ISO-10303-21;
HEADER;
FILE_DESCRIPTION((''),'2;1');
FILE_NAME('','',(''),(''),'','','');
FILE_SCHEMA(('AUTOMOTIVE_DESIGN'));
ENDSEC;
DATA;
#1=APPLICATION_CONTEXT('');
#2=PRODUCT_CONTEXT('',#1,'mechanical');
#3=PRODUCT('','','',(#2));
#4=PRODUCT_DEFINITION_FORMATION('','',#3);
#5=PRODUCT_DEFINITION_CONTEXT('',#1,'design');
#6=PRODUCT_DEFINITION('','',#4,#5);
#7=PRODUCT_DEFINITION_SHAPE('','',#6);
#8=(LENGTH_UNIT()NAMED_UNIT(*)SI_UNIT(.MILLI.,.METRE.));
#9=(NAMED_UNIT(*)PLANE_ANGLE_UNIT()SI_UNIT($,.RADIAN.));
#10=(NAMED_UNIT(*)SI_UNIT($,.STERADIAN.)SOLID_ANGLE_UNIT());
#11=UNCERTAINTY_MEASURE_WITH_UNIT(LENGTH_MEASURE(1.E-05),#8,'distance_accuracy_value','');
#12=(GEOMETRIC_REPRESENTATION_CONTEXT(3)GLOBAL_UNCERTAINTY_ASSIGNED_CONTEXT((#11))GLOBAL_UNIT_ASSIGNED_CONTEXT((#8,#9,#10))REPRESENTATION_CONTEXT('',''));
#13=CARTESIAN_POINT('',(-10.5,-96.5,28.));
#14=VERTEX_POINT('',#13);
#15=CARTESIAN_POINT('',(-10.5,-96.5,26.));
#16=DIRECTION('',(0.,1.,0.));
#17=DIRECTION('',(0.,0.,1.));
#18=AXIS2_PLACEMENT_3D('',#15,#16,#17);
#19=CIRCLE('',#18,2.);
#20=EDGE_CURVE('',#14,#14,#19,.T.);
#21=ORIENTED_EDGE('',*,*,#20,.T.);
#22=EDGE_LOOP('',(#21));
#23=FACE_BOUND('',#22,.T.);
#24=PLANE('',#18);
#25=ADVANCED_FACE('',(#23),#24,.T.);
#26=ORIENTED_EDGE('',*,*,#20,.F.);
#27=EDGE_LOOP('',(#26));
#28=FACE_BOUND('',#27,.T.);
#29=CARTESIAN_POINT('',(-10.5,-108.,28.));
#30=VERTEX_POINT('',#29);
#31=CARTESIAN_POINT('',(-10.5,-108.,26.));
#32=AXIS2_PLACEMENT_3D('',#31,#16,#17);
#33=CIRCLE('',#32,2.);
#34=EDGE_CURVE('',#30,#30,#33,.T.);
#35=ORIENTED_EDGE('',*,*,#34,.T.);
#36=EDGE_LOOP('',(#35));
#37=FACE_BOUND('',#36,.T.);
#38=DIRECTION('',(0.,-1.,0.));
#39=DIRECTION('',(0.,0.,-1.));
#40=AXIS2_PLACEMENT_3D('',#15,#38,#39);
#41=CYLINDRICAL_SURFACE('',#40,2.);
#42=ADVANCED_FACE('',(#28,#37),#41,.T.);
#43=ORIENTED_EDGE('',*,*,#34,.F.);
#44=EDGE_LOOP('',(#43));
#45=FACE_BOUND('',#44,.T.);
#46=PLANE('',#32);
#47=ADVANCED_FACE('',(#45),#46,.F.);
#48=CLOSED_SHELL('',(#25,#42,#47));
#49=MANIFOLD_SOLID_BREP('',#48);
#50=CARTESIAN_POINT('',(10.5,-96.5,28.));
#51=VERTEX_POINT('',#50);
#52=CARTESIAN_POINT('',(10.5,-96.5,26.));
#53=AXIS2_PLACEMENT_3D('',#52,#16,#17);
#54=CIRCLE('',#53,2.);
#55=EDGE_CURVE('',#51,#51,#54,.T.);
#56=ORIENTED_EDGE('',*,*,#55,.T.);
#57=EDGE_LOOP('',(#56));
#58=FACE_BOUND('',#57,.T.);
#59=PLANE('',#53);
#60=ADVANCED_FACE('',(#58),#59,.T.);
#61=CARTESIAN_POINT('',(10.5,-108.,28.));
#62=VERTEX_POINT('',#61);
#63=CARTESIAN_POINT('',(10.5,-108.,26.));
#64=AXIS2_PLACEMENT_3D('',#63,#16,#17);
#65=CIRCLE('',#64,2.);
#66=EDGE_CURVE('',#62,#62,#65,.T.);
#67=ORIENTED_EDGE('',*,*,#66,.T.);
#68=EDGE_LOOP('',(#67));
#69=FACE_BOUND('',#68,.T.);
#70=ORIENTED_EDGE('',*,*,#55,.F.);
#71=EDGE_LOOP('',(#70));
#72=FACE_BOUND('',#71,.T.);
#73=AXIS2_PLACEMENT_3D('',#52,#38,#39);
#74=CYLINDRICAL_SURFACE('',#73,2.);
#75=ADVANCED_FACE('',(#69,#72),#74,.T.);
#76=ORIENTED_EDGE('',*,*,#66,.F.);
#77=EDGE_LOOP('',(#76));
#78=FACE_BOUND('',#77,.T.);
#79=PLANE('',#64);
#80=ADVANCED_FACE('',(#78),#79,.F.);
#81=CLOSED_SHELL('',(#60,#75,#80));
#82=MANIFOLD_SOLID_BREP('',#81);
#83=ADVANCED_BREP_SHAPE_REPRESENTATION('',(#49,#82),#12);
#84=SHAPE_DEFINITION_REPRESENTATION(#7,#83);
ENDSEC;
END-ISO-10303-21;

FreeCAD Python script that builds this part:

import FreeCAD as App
import Part
import Sketcher

doc = App.newDocument("Part")
body = doc.addObject("PartDesign::Body", "Body")

# Sketch on XZ plane
sketch1 = doc.addObject("Sketcher::SketchObject", "Sketch")
body.addObject(sketch1)
sketch1.AttachmentSupport = (doc.XZ_Plane, [""])
sketch1.MapMode = "FlatFace"
sketch1.AttachmentOffset = App.Placement(App.Vector(0, 0, 108), App.Rotation())
sketch1.addGeometry(Part.Circle(App.Vector(-10.5, 26, 0), App.Vector(0, 0, 1), 2), False)
sketch1.addConstraint(Sketcher.Constraint("Diameter", 0, 4.0))
sketch1.addConstraint(Sketcher.Constraint("DistanceY", -1, 1, 0, 3, 26.0))
sketch1.addConstraint(Sketcher.Constraint("DistanceX", 0, 3, -1, 1, 10.5))
pad1 = doc.addObject("PartDesign::Pad", "Pad")
body.addObject(pad1)
pad1.Profile = sketch1
pad1.Length = 11.5
pad1.Reversed = True
body2 = doc.addObject("PartDesign::Body", "Body001")

# Sketch on XZ plane
sketch2 = doc.addObject("Sketcher::SketchObject", "Sketch001")
body2.addObject(sketch2)
sketch2.AttachmentSupport = (doc.getObject("XZ_Plane001"), [""])
sketch2.MapMode = "FlatFace"
sketch2.AttachmentOffset = App.Placement(App.Vector(0, 0, 108), App.Rotation())
sketch2.addGeometry(Part.Circle(App.Vector(10.5, 26, 0), App.Vector(0, 0, 1), 2), False)
sketch2.addConstraint(Sketcher.Constraint("Diameter", 0, 4.0))
sketch2.addConstraint(Sketcher.Constraint("DistanceY", -1, 1, 0, 3, 26.0))
sketch2.addConstraint(Sketcher.Constraint("DistanceX", -1, 1, 0, 3, 10.5))
pad2 = doc.addObject("PartDesign::Pad", "Pad001")
body2.addObject(pad2)
pad2.Profile = sketch2
pad2.Length = 11.5
pad2.Reversed = True

doc.recompute()
